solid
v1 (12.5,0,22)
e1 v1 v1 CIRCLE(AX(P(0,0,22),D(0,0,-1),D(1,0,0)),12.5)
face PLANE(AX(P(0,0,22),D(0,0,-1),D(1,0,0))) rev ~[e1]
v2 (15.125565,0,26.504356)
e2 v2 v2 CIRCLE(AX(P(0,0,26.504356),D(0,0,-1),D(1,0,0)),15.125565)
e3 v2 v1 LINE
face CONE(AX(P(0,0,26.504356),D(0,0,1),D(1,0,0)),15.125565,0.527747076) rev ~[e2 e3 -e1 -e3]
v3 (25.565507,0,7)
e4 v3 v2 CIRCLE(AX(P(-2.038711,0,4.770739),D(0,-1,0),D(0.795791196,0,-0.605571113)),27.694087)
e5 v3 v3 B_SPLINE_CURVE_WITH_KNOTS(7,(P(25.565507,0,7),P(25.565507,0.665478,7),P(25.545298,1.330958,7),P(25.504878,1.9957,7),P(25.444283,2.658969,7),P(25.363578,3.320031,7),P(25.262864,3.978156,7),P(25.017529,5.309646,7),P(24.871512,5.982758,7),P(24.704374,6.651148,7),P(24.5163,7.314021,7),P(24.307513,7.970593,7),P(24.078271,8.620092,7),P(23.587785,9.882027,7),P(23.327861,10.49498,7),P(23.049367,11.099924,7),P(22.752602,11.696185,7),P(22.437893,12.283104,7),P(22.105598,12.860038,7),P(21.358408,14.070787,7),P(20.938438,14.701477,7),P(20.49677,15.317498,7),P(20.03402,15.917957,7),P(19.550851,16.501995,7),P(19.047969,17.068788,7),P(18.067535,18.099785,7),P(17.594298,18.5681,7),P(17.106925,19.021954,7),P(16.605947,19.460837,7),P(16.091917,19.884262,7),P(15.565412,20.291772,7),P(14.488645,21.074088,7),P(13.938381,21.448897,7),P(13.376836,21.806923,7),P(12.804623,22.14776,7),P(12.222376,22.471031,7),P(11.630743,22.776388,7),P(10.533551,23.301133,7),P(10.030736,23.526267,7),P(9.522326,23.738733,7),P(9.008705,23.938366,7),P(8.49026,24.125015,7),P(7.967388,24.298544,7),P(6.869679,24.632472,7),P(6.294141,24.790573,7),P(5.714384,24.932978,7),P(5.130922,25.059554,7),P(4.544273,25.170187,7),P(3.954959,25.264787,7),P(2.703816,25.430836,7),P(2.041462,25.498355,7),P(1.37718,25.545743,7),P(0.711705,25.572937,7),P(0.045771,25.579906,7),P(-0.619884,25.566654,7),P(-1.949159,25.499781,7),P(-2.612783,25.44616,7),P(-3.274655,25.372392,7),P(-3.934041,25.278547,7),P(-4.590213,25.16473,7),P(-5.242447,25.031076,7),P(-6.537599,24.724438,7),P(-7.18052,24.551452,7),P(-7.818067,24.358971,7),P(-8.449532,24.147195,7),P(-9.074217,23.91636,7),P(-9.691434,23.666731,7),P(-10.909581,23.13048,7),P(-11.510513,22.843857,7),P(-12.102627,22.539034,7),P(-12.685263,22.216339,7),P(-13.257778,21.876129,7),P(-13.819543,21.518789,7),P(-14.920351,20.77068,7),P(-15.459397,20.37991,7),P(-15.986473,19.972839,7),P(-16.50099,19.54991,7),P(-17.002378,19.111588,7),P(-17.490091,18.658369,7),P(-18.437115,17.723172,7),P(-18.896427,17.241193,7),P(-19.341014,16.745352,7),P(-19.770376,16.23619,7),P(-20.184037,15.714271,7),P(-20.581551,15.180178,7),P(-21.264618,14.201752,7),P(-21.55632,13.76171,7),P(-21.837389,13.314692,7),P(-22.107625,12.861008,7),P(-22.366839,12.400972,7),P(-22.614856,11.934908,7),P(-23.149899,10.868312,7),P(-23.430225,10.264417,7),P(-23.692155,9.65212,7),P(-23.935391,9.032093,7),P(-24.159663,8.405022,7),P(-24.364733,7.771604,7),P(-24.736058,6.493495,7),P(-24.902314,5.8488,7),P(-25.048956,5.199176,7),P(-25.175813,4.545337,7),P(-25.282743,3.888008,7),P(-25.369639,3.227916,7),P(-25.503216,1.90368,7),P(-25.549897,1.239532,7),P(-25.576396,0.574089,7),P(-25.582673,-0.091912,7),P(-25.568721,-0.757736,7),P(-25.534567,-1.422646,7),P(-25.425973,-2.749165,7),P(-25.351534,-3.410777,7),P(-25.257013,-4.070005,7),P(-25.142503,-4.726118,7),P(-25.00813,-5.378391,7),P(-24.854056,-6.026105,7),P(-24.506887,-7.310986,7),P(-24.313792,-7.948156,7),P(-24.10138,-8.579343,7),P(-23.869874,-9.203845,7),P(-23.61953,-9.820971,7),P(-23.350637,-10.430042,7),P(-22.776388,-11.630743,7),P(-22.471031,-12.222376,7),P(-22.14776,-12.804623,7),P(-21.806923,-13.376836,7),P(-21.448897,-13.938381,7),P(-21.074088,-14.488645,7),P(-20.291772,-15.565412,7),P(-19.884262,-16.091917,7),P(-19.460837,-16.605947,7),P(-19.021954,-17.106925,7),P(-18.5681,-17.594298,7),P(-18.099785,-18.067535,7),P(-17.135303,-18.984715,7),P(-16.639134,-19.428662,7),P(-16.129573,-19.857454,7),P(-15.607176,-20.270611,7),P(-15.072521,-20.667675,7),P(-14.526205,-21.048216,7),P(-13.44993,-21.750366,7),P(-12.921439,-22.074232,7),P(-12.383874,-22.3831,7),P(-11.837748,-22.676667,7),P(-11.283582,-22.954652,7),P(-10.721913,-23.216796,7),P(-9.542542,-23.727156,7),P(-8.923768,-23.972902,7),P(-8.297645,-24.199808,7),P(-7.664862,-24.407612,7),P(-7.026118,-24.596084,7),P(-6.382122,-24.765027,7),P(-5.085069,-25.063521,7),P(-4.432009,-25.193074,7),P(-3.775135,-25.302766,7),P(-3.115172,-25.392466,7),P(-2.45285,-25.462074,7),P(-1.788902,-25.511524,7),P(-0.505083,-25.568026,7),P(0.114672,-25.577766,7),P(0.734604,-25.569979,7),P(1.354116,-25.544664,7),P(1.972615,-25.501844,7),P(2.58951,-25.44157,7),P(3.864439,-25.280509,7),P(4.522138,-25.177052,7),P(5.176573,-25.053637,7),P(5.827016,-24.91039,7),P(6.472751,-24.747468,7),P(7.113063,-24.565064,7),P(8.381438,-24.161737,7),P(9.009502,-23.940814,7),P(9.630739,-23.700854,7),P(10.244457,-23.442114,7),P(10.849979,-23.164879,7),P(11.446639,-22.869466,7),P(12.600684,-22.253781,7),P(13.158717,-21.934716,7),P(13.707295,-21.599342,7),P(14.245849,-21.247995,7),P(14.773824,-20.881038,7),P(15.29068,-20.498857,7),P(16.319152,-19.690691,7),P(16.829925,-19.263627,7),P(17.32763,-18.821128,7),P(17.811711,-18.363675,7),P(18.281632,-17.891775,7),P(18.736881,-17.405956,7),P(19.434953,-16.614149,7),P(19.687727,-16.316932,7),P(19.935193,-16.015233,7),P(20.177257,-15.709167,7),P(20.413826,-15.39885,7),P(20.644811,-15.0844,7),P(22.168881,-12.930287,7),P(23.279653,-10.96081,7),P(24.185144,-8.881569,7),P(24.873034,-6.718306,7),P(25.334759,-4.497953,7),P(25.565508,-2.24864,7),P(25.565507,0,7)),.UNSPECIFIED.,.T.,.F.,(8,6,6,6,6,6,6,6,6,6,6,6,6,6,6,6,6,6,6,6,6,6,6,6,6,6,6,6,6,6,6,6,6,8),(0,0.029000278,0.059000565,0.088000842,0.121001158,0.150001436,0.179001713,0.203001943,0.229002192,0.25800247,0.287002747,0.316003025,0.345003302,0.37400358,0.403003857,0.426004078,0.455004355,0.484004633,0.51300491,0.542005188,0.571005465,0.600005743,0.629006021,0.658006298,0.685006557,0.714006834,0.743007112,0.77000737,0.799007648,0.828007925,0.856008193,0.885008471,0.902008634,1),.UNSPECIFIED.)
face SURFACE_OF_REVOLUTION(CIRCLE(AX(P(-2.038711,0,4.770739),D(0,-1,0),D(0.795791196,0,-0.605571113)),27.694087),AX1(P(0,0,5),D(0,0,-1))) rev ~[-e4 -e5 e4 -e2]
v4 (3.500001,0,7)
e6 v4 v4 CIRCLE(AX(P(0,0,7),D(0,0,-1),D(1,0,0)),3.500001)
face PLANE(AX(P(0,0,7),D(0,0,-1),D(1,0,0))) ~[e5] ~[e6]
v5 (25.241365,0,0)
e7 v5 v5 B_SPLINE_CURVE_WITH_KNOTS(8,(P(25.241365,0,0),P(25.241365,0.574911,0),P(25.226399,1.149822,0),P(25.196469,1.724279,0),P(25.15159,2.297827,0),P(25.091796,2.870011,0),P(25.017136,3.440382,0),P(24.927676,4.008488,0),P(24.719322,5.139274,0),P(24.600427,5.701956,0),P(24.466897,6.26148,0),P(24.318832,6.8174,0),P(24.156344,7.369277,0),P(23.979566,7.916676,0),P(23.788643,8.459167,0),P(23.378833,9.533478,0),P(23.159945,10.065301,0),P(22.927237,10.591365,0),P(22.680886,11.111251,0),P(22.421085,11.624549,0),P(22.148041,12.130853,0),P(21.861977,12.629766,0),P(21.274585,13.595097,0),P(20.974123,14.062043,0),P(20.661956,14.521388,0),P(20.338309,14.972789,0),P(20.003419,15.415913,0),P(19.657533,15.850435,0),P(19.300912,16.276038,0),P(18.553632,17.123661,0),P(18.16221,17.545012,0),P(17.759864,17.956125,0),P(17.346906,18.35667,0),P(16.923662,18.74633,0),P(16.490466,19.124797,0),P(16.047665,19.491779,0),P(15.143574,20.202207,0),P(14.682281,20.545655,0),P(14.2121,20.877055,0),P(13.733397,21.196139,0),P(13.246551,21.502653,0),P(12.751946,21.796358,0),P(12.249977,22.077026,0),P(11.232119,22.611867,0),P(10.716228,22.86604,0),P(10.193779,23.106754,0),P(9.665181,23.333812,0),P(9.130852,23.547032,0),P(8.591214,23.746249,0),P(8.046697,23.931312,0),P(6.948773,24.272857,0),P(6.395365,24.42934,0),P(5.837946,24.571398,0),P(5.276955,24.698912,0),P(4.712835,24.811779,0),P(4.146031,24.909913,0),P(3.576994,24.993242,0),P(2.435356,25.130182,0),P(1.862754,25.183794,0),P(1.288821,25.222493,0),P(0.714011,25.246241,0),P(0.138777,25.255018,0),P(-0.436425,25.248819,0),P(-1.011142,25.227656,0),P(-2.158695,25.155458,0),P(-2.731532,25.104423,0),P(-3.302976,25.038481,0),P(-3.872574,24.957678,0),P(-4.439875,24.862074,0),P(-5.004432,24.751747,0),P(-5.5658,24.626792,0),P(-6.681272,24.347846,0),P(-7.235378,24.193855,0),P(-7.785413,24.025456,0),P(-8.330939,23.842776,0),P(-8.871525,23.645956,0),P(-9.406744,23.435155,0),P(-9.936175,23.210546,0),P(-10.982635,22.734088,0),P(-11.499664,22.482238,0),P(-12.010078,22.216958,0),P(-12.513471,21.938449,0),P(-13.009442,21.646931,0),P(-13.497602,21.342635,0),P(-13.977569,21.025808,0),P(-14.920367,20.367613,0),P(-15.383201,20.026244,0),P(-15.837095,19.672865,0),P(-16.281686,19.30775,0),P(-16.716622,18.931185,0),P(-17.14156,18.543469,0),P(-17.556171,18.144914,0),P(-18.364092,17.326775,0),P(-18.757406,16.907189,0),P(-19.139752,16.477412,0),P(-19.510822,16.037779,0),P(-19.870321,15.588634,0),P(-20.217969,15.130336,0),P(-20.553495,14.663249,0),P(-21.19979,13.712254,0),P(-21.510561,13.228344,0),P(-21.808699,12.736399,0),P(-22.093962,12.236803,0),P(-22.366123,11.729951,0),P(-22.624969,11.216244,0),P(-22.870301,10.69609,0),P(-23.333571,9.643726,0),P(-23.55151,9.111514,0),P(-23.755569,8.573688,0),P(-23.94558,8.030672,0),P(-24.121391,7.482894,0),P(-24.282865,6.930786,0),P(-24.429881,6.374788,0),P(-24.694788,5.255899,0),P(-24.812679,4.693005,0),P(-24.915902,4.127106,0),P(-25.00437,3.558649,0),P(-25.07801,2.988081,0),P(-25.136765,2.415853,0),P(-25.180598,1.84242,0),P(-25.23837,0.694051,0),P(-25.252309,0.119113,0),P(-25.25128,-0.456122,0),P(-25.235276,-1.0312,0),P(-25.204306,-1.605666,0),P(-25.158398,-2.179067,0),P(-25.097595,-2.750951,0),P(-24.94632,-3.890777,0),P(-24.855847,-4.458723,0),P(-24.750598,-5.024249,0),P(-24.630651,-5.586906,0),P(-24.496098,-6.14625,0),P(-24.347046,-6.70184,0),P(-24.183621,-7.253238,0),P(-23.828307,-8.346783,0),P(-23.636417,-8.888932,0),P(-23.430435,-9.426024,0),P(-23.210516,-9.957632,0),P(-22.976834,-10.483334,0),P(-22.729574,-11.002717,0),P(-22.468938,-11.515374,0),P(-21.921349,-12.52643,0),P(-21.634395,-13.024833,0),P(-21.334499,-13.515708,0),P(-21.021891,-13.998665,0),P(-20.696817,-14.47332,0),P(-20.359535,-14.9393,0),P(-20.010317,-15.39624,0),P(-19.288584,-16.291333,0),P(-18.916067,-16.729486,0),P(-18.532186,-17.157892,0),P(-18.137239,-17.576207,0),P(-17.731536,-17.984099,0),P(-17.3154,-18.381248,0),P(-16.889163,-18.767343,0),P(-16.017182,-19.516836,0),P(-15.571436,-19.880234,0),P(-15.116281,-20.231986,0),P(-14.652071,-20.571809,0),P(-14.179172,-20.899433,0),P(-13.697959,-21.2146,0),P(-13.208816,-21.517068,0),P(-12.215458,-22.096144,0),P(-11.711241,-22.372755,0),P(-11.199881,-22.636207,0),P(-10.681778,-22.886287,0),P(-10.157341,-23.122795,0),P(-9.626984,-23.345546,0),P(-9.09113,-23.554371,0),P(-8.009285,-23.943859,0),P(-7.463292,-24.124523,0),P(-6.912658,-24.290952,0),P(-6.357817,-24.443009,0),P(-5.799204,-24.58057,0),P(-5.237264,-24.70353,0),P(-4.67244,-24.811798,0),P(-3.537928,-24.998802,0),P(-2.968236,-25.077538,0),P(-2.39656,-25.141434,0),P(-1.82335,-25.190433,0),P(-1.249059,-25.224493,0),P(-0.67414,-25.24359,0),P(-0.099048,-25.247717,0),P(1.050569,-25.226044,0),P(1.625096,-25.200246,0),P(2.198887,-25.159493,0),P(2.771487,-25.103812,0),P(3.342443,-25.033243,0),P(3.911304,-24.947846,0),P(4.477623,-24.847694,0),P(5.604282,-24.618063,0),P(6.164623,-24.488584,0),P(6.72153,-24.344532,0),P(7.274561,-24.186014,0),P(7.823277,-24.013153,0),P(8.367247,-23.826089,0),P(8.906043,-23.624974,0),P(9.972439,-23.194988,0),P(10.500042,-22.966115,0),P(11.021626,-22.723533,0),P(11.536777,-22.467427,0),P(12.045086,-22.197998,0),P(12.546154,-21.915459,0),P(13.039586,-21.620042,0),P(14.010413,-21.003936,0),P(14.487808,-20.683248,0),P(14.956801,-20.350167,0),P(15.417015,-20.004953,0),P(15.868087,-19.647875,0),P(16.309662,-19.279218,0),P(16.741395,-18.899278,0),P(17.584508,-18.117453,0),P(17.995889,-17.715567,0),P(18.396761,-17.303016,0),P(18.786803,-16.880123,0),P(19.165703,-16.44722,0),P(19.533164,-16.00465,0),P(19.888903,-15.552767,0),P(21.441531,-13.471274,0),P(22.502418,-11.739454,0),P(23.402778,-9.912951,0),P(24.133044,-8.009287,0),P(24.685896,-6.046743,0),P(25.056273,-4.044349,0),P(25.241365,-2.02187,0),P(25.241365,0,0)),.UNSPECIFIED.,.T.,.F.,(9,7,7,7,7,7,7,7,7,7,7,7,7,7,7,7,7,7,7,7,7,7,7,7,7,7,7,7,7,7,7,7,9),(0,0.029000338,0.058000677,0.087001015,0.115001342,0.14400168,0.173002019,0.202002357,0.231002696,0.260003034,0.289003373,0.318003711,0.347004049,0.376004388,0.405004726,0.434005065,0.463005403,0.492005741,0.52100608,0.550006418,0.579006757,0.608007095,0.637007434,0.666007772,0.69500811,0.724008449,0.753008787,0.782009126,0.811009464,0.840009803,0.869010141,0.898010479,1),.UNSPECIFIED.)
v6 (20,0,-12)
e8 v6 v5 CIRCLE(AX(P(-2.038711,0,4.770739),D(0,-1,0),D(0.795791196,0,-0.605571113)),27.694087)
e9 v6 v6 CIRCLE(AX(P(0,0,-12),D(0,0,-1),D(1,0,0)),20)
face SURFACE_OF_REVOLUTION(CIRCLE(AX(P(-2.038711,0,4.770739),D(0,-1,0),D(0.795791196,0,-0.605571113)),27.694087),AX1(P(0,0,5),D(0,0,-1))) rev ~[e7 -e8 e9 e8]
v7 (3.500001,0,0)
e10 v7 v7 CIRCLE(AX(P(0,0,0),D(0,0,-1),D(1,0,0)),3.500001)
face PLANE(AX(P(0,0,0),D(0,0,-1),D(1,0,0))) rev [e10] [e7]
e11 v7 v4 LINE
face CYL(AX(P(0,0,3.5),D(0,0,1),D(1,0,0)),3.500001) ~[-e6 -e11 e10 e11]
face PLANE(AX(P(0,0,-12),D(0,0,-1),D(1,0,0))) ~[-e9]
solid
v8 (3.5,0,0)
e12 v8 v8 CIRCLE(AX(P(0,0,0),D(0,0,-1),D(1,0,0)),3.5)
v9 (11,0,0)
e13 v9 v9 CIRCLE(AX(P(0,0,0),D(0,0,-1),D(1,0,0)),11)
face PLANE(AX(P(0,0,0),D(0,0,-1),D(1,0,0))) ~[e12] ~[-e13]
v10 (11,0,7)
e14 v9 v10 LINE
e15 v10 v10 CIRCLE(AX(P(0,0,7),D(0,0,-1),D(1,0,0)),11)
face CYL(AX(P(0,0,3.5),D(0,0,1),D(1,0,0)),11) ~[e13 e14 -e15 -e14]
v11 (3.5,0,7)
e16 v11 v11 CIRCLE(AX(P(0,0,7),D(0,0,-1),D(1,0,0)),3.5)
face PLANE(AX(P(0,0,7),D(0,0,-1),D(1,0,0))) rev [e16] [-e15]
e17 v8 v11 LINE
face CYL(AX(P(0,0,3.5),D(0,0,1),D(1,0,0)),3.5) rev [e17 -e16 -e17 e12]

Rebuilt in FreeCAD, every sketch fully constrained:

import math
import FreeCAD as App
import Part
import Sketcher
from FreeCAD import Vector
Q = App.Units.Quantity


def add_polygon(sketch, points):
    """Adds a closed chain of lines whose ends are joined by coincident constraints."""
    first, n = sketch.GeometryCount, len(points)
    for a, b in zip(points, points[1:] + points[:1]):
        sketch.addGeometry(Part.LineSegment(App.Vector(*a, 0), App.Vector(*b, 0)), False)
    for i in range(n):
        sketch.addConstraint(Sketcher.Constraint("Coincident", first + i, 2, first + (i + 1) % n, 1))

doc = App.newDocument("Part")
body = doc.addObject("PartDesign::Body", "Body")

# Sketch on XZ plane
sketch1 = body.newObject("Sketcher::SketchObject", "Sketch")
sketch1.AttachmentSupport = (doc.getObject("XZ_Plane"), [""])
sketch1.MapMode = "FlatFace"
sketch1.addGeometry([
    Part.LineSegment(Vector(0, 22, 0), Vector(0, -12, 0)),  # 0
    Part.LineSegment(Vector(0, -12, 0), Vector(20, -12, 0)),  # 1
    Part.ArcOfCircle(Part.Circle(Vector(-2.038711, 4.770739, 0), Vector(0, 0, 1), 27.694087), math.radians(-37.26995), math.radians(51.699839)),  # 2
    Part.LineSegment(Vector(15.125565, 26.504356, 0), Vector(12.5, 22, 0)),  # 3
    Part.LineSegment(Vector(12.5, 22, 0), Vector(0, 22, 0)),  # 4
], False)
sketch1.addConstraint([
    Sketcher.Constraint("Coincident", 0, 2, 1, 1),
    Sketcher.Constraint("Coincident", 1, 2, 2, 1),
    Sketcher.Constraint("Coincident", 2, 2, 3, 1),
    Sketcher.Constraint("Coincident", 3, 2, 4, 1),
    Sketcher.Constraint("Coincident", 4, 2, 0, 1),
    Sketcher.Constraint("Vertical", 0),
    Sketcher.Constraint("Horizontal", 1),
    Sketcher.Constraint("Horizontal", 4),
    Sketcher.Constraint("PointOnObject", 0, 2, -2),
    Sketcher.Constraint("DistanceX", 1, 1, 1, 2, Q("20 mm")),
    Sketcher.Constraint("DistanceY", 0, 2, 0, 1, Q("34 mm")),
    Sketcher.Constraint("DistanceX", 4, 2, 4, 1, Q("12.5 mm")),
    Sketcher.Constraint("DistanceY", 0, 2, -1, 1, Q("12 mm")),
    Sketcher.Constraint("Radius", 2, Q("27.694087 mm")),
    Sketcher.Constraint("DistanceX", 2, 3, -1, 1, Q("2.038711 mm")),
    Sketcher.Constraint("Distance", 3, Q("5.213714 mm")),
])
revolution = body.newObject("PartDesign::Revolution", "Revolution")
revolution.Profile = sketch1
revolution.ReferenceAxis = (sketch1, ["V_Axis"])
revolution.Angle = 360

# Sketch on XZ plane
sketch2 = body.newObject("Sketcher::SketchObject", "Sketch001")
sketch2.AttachmentSupport = (doc.getObject("XZ_Plane"), [""])
sketch2.MapMode = "FlatFace"
add_polygon(sketch2, [(3.500001, 7), (3.500001, 0), (28.697219, 0), (28.697219, 7)])  # lines 0-3
sketch2.addConstraint([
    Sketcher.Constraint("Vertical", 0),
    Sketcher.Constraint("Horizontal", 1),
    Sketcher.Constraint("Vertical", 2),
    Sketcher.Constraint("Horizontal", 3),
    Sketcher.Constraint("PointOnObject", 0, 2, -1),
    Sketcher.Constraint("DistanceY", 0, 2, 0, 1, Q("7 mm")),
    Sketcher.Constraint("DistanceX", -1, 1, 0, 2, Q("3.500001 mm")),
    Sketcher.Constraint("DistanceX", 1, 1, 1, 2, Q("25.197219 mm")),
])
groove = body.newObject("PartDesign::Groove", "Groove")
groove.Profile = sketch2
groove.ReferenceAxis = (sketch2, ["V_Axis"])
groove.Angle = 360
body2 = doc.addObject("PartDesign::Body", "Body001")

# Sketch on XZ plane
sketch3 = body2.newObject("Sketcher::SketchObject", "Sketch002")
sketch3.AttachmentSupport = (doc.getObject("XZ_Plane001"), [""])
sketch3.MapMode = "FlatFace"
add_polygon(sketch3, [(3.5, 7), (3.5, 0), (11, 0), (11, 7)])  # lines 0-3
sketch3.addConstraint([
    Sketcher.Constraint("Vertical", 0),
    Sketcher.Constraint("Horizontal", 1),
    Sketcher.Constraint("Vertical", 2),
    Sketcher.Constraint("Horizontal", 3),
    Sketcher.Constraint("PointOnObject", 0, 2, -1),
    Sketcher.Constraint("DistanceY", 0, 2, 0, 1, Q("7 mm")),
    Sketcher.Constraint("DistanceX", 1, 1, 1, 2, Q("7.5 mm")),
    Sketcher.Constraint("DistanceX", -1, 1, 1, 2, Q("11 mm")),
])
revolution2 = body2.newObject("PartDesign::Revolution", "Revolution001")
revolution2.Profile = sketch3
revolution2.ReferenceAxis = (sketch3, ["V_Axis"])
revolution2.Angle = 360

doc.recompute()
